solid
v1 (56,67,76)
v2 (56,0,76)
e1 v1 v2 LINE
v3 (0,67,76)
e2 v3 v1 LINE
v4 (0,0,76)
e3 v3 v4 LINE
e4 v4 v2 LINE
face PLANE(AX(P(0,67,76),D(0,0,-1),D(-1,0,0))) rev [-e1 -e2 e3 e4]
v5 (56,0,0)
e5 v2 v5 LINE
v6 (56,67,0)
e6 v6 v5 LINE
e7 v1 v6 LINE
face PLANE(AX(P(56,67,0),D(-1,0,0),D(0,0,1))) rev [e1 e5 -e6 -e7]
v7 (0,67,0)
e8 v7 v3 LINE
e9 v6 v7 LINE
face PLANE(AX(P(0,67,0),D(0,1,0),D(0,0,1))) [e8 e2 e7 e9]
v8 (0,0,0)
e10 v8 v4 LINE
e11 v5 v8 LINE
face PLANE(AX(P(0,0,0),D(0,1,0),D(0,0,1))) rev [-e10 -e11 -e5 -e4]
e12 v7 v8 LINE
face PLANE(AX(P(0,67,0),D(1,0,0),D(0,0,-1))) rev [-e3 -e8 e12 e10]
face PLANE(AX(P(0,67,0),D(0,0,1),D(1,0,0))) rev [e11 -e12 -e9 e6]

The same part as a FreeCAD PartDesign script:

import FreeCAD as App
import Part
import Sketcher

V = App.Vector
Q = App.Units.Quantity

doc = App.newDocument("Part")
body = doc.addObject("PartDesign::Body", "Body")

# Sketch on XZ plane
sketch1 = body.newObject("Sketcher::SketchObject", "Sketch")
sketch1.AttachmentSupport = (doc.getObject("XZ_Plane"), [""])
sketch1.MapMode = "FlatFace"
sketch1.addGeometry([
    Part.LineSegment(V(0, 0, 0), V(0, 76, 0)),
    Part.LineSegment(V(0, 76, 0), V(56, 76, 0)),
    Part.LineSegment(V(56, 76, 0), V(56, 0, 0)),
    Part.LineSegment(V(56, 0, 0), V(0, 0, 0)),
], False)
sketch1.addConstraint([
    Sketcher.Constraint("Coincident", 0, 2, 1, 1),
    Sketcher.Constraint("Coincident", 1, 2, 2, 1),
    Sketcher.Constraint("Coincident", 2, 2, 3, 1),
    Sketcher.Constraint("Coincident", 3, 2, 0, 1),
    Sketcher.Constraint("Vertical", 0),
    Sketcher.Constraint("Horizontal", 1),
    Sketcher.Constraint("Vertical", 2),
    Sketcher.Constraint("Horizontal", 3),
    Sketcher.Constraint("Coincident", 3, 2, -1, 1),
    Sketcher.Constraint("DistanceX", 1, 1, 1, 2, Q("56 mm")),
    Sketcher.Constraint("DistanceY", 0, 1, 0, 2, Q("76 mm")),
])
pad1 = body.newObject("PartDesign::Pad", "Pad")
pad1.Profile = sketch1
pad1.Length = 67
pad1.Reversed = True

doc.recompute()
